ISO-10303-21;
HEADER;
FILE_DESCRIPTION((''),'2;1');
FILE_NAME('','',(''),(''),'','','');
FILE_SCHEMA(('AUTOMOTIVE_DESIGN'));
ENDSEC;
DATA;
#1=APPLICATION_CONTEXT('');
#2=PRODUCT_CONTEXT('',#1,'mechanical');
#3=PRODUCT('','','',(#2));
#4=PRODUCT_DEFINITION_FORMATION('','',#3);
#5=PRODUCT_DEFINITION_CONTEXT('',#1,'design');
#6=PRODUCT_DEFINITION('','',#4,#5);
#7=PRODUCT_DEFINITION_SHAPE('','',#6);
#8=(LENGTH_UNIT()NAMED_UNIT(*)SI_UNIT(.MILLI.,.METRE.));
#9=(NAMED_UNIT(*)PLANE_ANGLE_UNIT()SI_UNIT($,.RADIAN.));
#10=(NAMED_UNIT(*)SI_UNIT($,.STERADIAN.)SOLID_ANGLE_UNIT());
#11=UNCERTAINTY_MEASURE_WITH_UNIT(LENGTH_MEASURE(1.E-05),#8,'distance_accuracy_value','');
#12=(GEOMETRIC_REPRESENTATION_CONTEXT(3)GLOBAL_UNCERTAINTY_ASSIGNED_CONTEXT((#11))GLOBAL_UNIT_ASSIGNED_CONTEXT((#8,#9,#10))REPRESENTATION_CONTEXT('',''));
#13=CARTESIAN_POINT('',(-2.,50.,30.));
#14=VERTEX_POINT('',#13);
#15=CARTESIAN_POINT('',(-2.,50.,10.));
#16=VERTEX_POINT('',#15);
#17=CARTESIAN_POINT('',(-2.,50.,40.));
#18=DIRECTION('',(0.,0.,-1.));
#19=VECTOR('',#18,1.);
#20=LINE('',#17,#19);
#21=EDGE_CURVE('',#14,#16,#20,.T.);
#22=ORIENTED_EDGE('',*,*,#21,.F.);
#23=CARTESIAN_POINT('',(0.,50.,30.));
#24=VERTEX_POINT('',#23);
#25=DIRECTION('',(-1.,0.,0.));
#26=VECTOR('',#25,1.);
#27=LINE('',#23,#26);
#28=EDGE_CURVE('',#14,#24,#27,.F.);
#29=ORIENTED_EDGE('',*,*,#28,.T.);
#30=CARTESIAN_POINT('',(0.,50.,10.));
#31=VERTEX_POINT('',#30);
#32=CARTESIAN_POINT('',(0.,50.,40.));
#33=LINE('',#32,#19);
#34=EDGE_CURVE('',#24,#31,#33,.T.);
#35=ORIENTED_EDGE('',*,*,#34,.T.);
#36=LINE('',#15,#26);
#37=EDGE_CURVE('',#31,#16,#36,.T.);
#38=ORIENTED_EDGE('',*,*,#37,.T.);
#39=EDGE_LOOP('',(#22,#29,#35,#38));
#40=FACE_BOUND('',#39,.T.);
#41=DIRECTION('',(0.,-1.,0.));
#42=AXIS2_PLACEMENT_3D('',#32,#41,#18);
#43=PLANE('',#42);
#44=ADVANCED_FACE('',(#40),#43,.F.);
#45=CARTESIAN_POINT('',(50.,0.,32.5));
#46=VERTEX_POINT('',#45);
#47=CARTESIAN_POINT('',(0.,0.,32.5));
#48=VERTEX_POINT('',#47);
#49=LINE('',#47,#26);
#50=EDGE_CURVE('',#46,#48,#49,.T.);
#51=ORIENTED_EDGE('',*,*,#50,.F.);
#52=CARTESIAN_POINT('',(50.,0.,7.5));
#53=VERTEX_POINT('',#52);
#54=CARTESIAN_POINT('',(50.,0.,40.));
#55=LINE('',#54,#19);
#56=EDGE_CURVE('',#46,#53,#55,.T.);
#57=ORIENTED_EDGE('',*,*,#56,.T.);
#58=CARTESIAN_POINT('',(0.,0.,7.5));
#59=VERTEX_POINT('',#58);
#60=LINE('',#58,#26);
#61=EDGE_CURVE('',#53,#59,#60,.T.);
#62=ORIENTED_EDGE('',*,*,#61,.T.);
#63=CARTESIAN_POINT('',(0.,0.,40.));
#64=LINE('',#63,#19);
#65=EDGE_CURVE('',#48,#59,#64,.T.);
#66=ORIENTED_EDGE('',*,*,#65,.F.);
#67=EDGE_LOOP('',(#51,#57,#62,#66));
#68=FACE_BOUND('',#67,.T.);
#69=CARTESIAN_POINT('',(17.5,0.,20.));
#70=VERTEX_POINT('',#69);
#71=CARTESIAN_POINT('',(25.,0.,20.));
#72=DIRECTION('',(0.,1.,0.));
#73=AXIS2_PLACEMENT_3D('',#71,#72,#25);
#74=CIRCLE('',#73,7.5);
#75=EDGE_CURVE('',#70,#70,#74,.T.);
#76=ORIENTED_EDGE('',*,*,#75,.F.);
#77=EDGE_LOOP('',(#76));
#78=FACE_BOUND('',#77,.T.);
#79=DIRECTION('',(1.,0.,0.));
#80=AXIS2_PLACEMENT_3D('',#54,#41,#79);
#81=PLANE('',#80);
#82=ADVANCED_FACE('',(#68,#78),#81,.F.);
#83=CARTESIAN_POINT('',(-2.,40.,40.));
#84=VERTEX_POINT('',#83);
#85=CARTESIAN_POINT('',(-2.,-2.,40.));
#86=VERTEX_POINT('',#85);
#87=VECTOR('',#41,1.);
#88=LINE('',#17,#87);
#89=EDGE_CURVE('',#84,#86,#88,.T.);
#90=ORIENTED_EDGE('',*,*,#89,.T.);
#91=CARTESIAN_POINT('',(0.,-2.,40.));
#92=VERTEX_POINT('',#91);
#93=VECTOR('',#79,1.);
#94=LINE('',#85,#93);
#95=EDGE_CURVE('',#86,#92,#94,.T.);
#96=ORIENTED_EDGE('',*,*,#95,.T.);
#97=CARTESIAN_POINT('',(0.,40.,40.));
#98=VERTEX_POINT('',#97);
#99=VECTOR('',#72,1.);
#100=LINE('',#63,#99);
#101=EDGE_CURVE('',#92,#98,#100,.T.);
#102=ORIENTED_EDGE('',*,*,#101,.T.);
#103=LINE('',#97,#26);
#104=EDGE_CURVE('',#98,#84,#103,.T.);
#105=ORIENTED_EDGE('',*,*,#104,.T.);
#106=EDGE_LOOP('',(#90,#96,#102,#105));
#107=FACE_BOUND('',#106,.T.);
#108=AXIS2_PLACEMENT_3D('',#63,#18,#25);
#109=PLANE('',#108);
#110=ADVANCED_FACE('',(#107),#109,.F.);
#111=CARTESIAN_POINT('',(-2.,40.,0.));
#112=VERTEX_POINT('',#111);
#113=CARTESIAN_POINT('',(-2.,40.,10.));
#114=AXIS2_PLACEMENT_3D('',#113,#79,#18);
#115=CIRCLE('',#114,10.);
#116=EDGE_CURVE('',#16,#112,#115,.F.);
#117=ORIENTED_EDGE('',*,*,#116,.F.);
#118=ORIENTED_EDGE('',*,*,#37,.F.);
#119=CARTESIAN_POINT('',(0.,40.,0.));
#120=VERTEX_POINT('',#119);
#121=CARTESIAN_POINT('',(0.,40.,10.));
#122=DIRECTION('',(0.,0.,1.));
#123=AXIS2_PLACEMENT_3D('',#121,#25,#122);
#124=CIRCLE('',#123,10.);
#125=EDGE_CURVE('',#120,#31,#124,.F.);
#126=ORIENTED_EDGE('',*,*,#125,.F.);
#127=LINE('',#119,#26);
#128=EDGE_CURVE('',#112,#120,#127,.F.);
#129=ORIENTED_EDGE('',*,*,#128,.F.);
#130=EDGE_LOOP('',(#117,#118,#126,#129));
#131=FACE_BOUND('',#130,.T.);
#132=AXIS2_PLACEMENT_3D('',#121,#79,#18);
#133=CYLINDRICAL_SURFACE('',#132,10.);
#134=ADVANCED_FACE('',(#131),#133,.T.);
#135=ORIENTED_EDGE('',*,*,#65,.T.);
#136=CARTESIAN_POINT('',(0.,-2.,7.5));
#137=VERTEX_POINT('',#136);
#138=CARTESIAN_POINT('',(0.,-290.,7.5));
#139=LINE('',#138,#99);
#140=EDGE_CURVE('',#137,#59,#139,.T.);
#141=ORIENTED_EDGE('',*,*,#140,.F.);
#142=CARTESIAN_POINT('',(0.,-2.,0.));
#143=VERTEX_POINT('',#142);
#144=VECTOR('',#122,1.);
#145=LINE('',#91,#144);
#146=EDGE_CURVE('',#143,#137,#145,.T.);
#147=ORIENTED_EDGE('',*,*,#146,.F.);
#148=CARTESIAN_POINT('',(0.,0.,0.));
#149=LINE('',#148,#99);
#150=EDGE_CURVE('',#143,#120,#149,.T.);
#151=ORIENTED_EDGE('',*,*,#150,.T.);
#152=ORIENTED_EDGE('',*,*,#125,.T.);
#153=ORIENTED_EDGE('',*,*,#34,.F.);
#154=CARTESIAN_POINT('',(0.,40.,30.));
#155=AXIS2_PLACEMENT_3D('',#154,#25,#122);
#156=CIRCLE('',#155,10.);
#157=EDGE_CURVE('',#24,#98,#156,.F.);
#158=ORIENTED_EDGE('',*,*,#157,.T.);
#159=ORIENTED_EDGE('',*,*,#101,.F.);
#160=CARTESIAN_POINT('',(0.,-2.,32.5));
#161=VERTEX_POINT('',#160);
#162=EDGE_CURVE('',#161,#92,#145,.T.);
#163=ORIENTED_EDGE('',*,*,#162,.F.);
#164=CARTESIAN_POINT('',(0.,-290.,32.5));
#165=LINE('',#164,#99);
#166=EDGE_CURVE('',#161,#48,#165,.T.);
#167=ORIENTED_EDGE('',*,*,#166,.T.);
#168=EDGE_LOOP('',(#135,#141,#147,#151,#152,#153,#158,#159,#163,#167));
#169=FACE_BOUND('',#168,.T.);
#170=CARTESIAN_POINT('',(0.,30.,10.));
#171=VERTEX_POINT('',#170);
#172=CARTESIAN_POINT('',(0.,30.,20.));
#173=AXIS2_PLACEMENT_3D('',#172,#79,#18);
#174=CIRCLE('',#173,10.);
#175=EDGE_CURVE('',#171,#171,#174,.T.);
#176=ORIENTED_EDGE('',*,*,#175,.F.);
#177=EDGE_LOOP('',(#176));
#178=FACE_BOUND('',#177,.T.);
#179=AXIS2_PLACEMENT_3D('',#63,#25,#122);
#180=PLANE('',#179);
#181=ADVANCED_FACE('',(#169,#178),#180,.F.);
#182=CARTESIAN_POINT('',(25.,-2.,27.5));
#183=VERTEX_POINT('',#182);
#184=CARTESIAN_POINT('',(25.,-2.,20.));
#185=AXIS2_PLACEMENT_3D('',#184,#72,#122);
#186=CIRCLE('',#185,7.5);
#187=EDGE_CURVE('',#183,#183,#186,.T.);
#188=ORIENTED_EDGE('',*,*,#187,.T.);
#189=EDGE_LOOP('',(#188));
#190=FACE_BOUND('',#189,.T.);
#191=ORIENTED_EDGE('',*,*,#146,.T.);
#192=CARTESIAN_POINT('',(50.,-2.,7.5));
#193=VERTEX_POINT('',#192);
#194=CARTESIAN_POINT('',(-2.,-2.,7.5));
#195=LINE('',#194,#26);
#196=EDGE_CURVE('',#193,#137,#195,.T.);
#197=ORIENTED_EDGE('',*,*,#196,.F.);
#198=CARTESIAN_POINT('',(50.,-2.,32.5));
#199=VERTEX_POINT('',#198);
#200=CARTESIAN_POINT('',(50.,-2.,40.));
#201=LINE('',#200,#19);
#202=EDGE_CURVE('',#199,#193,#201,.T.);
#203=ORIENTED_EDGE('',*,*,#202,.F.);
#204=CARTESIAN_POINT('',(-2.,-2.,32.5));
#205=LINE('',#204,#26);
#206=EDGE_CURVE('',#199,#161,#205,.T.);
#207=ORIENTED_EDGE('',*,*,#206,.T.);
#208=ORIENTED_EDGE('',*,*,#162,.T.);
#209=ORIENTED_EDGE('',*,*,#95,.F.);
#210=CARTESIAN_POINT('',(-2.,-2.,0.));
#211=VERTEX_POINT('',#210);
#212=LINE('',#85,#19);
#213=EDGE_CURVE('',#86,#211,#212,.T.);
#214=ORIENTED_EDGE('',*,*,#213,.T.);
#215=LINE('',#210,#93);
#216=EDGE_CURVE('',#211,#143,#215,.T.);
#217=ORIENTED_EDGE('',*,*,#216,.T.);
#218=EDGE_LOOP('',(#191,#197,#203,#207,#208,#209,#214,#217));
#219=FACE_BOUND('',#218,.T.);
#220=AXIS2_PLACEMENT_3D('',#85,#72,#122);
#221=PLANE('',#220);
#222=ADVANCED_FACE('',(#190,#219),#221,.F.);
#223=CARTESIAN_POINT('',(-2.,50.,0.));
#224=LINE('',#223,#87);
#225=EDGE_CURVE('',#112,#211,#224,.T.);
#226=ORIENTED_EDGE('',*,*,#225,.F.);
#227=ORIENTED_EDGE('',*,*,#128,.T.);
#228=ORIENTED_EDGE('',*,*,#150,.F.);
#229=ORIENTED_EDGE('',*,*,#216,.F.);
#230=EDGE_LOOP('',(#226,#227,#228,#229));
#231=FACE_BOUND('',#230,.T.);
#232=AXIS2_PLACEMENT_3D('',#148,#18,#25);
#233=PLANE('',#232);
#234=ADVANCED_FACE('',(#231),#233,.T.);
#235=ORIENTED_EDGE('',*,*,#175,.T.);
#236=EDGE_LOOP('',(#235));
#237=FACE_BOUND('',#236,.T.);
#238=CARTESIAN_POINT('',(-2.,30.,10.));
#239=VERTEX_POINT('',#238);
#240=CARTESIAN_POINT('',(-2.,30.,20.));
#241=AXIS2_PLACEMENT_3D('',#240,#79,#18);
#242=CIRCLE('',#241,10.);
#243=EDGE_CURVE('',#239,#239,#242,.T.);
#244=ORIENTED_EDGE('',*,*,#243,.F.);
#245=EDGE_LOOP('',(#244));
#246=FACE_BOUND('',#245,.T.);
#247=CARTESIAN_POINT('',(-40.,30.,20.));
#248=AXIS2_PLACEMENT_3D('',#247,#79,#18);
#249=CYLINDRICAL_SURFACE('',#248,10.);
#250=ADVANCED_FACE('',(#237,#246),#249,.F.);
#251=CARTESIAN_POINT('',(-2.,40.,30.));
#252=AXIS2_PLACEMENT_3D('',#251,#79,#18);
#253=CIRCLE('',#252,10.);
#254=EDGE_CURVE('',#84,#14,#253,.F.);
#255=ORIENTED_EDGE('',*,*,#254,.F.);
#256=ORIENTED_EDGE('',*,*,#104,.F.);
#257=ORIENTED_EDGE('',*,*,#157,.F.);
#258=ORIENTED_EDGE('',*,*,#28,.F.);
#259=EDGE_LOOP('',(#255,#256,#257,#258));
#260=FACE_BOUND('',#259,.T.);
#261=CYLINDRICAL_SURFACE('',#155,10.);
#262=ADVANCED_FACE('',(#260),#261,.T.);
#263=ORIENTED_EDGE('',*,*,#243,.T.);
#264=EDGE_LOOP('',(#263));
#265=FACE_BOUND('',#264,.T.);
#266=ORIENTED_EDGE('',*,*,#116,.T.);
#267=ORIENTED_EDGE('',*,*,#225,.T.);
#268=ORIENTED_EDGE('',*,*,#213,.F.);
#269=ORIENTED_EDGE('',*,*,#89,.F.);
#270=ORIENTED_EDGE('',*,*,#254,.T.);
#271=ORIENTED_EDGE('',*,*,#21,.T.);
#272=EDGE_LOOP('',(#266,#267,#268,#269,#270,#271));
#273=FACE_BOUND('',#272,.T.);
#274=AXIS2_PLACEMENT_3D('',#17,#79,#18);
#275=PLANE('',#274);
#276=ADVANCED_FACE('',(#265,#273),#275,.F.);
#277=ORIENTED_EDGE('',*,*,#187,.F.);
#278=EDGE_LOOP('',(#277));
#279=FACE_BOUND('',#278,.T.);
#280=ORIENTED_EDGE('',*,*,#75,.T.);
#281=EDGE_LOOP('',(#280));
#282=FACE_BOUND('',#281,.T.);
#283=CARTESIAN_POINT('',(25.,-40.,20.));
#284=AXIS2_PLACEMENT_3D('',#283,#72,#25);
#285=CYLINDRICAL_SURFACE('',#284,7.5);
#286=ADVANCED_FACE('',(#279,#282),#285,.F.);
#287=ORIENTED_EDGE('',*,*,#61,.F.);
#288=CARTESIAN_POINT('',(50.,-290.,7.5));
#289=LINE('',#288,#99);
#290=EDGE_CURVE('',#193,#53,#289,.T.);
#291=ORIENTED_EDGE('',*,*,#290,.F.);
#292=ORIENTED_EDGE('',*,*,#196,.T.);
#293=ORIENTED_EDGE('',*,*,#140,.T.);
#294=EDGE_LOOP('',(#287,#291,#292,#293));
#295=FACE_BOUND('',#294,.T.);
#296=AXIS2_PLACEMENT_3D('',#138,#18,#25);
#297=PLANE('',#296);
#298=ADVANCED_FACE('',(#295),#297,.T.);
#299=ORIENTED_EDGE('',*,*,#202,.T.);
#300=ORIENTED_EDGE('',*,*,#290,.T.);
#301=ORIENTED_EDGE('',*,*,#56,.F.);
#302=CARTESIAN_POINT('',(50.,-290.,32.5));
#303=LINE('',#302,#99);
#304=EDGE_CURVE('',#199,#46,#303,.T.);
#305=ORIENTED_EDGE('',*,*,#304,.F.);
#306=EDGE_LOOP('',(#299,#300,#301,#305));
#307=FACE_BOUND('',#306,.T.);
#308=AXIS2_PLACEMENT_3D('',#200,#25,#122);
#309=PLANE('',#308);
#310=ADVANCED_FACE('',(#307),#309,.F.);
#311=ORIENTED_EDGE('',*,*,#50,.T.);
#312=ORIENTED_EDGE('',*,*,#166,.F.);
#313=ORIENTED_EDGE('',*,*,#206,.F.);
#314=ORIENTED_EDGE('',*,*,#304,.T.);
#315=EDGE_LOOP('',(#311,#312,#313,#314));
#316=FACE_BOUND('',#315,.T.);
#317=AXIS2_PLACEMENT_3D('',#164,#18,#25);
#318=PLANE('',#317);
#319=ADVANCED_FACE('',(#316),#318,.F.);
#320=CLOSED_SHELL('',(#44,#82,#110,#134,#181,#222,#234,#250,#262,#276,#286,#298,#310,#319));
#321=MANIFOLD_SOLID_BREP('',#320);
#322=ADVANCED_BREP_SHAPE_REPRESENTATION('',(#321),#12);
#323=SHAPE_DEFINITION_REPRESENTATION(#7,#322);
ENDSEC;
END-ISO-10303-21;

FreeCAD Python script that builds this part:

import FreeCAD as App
import Part
import Sketcher
from FreeCAD import Vector
Q = App.Units.Quantity


def edges_at(feature, points):
    """Names of the edges that pass closest to the given points."""
    edges = feature.Shape.Edges
    near = lambda p: min(range(len(edges)), key=lambda i: edges[i].distToShape(Part.Vertex(*p))[0])
    return sorted({f"Edge{near(p) + 1}" for p in points})


def add_polygon(sketch, points):
    """Adds a closed chain of lines whose ends are joined by coincident constraints."""
    first, n = sketch.GeometryCount, len(points)
    for a, b in zip(points, points[1:] + points[:1]):
        sketch.addGeometry(Part.LineSegment(App.Vector(*a, 0), App.Vector(*b, 0)), False)
    for i in range(n):
        sketch.addConstraint(Sketcher.Constraint("Coincident", first + i, 2, first + (i + 1) % n, 1))

doc = App.newDocument("Part")
body = doc.addObject("PartDesign::Body", "Body")

# Sketch on XY plane
sketch1 = doc.addObject("Sketcher::SketchObject", "Sketch")
body.addObject(sketch1)
sketch1.AttachmentSupport = (doc.XY_Plane, [""])
sketch1.MapMode = "FlatFace"
add_polygon(sketch1, [(0, 0), (0, 50), (-2, 50), (-2, -2), (50, -2), (50, 0)])  # lines 0-5
sketch1.addConstraint(Sketcher.Constraint("Vertical", 0))
sketch1.addConstraint(Sketcher.Constraint("Horizontal", 1))
sketch1.addConstraint(Sketcher.Constraint("Vertical", 2))
sketch1.addConstraint(Sketcher.Constraint("Horizontal", 3))
sketch1.addConstraint(Sketcher.Constraint("Vertical", 4))
sketch1.addConstraint(Sketcher.Constraint("Horizontal", 5))
sketch1.addConstraint(Sketcher.Constraint("Coincident", 5, 2, -1, 1))
sketch1.addConstraint(Sketcher.Constraint("Equal", 5, 0))
sketch1.addConstraint(Sketcher.Constraint("Equal", 3, 2))
sketch1.addConstraint(Sketcher.Constraint("DistanceX", 1, 2, 1, 1, Q("2 mm")))
sketch1.addConstraint(Sketcher.Constraint("DistanceX", 3, 1, 3, 2, Q("52 mm")))
pad1 = doc.addObject("PartDesign::Pad", "Pad")
body.addObject(pad1)
pad1.Profile = sketch1
pad1.Length = 40

# Sketch on YZ plane
sketch2 = doc.addObject("Sketcher::SketchObject", "Sketch001")
body.addObject(sketch2)
sketch2.AttachmentSupport = (doc.YZ_Plane, [""])
sketch2.MapMode = "FlatFace"
sketch2.addGeometry(Part.Circle(Vector(30, 20, 0), Vector(0, 0, 1), 10), False)
sketch2.addConstraint(Sketcher.Constraint("Diameter", 0, Q("20 mm")))
sketch2.addConstraint(Sketcher.Constraint("DistanceX", -1, 1, 0, 3, Q("30 mm")))
sketch2.addConstraint(Sketcher.Constraint("DistanceY", -1, 1, 0, 3, Q("20 mm")))
pocket1 = doc.addObject("PartDesign::Pocket", "Pocket")
body.addObject(pocket1)
pocket1.Profile = sketch2
pocket1.Length = 40

# Sketch on XZ plane
sketch3 = doc.addObject("Sketcher::SketchObject", "Sketch002")
body.addObject(sketch3)
sketch3.AttachmentSupport = (doc.XZ_Plane, [""])
sketch3.MapMode = "FlatFace"
sketch3.addGeometry(Part.Circle(Vector(25, 20, 0), Vector(0, 0, 1), 8), False)
sketch3.addConstraint(Sketcher.Constraint("Diameter", 0, Q("15 mm")))
sketch3.addConstraint(Sketcher.Constraint("DistanceX", -1, 1, 0, 3, Q("25 mm")))
sketch3.addConstraint(Sketcher.Constraint("DistanceY", -1, 1, 0, 3, Q("20 mm")))
pocket2 = doc.addObject("PartDesign::Pocket", "Pocket001")
body.addObject(pocket2)
pocket2.Profile = sketch3
pocket2.Length = 40
pocket2.Reversed = True
doc.recompute()

fillet = doc.addObject("PartDesign::Fillet", "Fillet")
body.addObject(fillet)
fillet.Base = (pocket2, edges_at(pocket2, [(-1, 50, 40), (-1, 50, 0)]))
fillet.Radius = 10

# Sketch on XZ plane
sketch4 = doc.addObject("Sketcher::SketchObject", "Sketch003")
body.addObject(sketch4)
sketch4.AttachmentSupport = (doc.XZ_Plane, [""])
sketch4.MapMode = "FlatFace"
add_polygon(sketch4, [(0, 32), (0, 40), (50, 40), (50, 32)])  # lines 0-3
add_polygon(sketch4, [(0, 0), (0, 8), (50, 8), (50, 0)])  # lines 4-7
sketch4.addConstraint(Sketcher.Constraint("Vertical", 0))
sketch4.addConstraint(Sketcher.Constraint("Horizontal", 1))
sketch4.addConstraint(Sketcher.Constraint("Vertical", 2))
sketch4.addConstraint(Sketcher.Constraint("Horizontal", 3))
sketch4.addConstraint(Sketcher.Constraint("Vertical", 4))
sketch4.addConstraint(Sketcher.Constraint("Horizontal", 5))
sketch4.addConstraint(Sketcher.Constraint("Vertical", 6))
sketch4.addConstraint(Sketcher.Constraint("Horizontal", 7))
sketch4.addConstraint(Sketcher.Constraint("Coincident", 7, 2, -1, 1))
sketch4.addConstraint(Sketcher.Constraint("PointOnObject", 0, 2, -2))
sketch4.addConstraint(Sketcher.Constraint("Vertical", 2, 2, 5, 2))
sketch4.addConstraint(Sketcher.Constraint("Equal", 2, 4))
sketch4.addConstraint(Sketcher.Constraint("DistanceX", 1, 1, 1, 2, Q("50 mm")))
sketch4.addConstraint(Sketcher.Constraint("DistanceY", 0, 1, 0, 2, Q("7.5 mm")))
sketch4.addConstraint(Sketcher.Constraint("DistanceY", -1, 1, 0, 2, Q("40 mm")))
pocket3 = doc.addObject("PartDesign::Pocket", "Pocket002")
body.addObject(pocket3)
pocket3.Profile = sketch4
pocket3.Length = 290
pocket3.Reversed = True

doc.recompute()
